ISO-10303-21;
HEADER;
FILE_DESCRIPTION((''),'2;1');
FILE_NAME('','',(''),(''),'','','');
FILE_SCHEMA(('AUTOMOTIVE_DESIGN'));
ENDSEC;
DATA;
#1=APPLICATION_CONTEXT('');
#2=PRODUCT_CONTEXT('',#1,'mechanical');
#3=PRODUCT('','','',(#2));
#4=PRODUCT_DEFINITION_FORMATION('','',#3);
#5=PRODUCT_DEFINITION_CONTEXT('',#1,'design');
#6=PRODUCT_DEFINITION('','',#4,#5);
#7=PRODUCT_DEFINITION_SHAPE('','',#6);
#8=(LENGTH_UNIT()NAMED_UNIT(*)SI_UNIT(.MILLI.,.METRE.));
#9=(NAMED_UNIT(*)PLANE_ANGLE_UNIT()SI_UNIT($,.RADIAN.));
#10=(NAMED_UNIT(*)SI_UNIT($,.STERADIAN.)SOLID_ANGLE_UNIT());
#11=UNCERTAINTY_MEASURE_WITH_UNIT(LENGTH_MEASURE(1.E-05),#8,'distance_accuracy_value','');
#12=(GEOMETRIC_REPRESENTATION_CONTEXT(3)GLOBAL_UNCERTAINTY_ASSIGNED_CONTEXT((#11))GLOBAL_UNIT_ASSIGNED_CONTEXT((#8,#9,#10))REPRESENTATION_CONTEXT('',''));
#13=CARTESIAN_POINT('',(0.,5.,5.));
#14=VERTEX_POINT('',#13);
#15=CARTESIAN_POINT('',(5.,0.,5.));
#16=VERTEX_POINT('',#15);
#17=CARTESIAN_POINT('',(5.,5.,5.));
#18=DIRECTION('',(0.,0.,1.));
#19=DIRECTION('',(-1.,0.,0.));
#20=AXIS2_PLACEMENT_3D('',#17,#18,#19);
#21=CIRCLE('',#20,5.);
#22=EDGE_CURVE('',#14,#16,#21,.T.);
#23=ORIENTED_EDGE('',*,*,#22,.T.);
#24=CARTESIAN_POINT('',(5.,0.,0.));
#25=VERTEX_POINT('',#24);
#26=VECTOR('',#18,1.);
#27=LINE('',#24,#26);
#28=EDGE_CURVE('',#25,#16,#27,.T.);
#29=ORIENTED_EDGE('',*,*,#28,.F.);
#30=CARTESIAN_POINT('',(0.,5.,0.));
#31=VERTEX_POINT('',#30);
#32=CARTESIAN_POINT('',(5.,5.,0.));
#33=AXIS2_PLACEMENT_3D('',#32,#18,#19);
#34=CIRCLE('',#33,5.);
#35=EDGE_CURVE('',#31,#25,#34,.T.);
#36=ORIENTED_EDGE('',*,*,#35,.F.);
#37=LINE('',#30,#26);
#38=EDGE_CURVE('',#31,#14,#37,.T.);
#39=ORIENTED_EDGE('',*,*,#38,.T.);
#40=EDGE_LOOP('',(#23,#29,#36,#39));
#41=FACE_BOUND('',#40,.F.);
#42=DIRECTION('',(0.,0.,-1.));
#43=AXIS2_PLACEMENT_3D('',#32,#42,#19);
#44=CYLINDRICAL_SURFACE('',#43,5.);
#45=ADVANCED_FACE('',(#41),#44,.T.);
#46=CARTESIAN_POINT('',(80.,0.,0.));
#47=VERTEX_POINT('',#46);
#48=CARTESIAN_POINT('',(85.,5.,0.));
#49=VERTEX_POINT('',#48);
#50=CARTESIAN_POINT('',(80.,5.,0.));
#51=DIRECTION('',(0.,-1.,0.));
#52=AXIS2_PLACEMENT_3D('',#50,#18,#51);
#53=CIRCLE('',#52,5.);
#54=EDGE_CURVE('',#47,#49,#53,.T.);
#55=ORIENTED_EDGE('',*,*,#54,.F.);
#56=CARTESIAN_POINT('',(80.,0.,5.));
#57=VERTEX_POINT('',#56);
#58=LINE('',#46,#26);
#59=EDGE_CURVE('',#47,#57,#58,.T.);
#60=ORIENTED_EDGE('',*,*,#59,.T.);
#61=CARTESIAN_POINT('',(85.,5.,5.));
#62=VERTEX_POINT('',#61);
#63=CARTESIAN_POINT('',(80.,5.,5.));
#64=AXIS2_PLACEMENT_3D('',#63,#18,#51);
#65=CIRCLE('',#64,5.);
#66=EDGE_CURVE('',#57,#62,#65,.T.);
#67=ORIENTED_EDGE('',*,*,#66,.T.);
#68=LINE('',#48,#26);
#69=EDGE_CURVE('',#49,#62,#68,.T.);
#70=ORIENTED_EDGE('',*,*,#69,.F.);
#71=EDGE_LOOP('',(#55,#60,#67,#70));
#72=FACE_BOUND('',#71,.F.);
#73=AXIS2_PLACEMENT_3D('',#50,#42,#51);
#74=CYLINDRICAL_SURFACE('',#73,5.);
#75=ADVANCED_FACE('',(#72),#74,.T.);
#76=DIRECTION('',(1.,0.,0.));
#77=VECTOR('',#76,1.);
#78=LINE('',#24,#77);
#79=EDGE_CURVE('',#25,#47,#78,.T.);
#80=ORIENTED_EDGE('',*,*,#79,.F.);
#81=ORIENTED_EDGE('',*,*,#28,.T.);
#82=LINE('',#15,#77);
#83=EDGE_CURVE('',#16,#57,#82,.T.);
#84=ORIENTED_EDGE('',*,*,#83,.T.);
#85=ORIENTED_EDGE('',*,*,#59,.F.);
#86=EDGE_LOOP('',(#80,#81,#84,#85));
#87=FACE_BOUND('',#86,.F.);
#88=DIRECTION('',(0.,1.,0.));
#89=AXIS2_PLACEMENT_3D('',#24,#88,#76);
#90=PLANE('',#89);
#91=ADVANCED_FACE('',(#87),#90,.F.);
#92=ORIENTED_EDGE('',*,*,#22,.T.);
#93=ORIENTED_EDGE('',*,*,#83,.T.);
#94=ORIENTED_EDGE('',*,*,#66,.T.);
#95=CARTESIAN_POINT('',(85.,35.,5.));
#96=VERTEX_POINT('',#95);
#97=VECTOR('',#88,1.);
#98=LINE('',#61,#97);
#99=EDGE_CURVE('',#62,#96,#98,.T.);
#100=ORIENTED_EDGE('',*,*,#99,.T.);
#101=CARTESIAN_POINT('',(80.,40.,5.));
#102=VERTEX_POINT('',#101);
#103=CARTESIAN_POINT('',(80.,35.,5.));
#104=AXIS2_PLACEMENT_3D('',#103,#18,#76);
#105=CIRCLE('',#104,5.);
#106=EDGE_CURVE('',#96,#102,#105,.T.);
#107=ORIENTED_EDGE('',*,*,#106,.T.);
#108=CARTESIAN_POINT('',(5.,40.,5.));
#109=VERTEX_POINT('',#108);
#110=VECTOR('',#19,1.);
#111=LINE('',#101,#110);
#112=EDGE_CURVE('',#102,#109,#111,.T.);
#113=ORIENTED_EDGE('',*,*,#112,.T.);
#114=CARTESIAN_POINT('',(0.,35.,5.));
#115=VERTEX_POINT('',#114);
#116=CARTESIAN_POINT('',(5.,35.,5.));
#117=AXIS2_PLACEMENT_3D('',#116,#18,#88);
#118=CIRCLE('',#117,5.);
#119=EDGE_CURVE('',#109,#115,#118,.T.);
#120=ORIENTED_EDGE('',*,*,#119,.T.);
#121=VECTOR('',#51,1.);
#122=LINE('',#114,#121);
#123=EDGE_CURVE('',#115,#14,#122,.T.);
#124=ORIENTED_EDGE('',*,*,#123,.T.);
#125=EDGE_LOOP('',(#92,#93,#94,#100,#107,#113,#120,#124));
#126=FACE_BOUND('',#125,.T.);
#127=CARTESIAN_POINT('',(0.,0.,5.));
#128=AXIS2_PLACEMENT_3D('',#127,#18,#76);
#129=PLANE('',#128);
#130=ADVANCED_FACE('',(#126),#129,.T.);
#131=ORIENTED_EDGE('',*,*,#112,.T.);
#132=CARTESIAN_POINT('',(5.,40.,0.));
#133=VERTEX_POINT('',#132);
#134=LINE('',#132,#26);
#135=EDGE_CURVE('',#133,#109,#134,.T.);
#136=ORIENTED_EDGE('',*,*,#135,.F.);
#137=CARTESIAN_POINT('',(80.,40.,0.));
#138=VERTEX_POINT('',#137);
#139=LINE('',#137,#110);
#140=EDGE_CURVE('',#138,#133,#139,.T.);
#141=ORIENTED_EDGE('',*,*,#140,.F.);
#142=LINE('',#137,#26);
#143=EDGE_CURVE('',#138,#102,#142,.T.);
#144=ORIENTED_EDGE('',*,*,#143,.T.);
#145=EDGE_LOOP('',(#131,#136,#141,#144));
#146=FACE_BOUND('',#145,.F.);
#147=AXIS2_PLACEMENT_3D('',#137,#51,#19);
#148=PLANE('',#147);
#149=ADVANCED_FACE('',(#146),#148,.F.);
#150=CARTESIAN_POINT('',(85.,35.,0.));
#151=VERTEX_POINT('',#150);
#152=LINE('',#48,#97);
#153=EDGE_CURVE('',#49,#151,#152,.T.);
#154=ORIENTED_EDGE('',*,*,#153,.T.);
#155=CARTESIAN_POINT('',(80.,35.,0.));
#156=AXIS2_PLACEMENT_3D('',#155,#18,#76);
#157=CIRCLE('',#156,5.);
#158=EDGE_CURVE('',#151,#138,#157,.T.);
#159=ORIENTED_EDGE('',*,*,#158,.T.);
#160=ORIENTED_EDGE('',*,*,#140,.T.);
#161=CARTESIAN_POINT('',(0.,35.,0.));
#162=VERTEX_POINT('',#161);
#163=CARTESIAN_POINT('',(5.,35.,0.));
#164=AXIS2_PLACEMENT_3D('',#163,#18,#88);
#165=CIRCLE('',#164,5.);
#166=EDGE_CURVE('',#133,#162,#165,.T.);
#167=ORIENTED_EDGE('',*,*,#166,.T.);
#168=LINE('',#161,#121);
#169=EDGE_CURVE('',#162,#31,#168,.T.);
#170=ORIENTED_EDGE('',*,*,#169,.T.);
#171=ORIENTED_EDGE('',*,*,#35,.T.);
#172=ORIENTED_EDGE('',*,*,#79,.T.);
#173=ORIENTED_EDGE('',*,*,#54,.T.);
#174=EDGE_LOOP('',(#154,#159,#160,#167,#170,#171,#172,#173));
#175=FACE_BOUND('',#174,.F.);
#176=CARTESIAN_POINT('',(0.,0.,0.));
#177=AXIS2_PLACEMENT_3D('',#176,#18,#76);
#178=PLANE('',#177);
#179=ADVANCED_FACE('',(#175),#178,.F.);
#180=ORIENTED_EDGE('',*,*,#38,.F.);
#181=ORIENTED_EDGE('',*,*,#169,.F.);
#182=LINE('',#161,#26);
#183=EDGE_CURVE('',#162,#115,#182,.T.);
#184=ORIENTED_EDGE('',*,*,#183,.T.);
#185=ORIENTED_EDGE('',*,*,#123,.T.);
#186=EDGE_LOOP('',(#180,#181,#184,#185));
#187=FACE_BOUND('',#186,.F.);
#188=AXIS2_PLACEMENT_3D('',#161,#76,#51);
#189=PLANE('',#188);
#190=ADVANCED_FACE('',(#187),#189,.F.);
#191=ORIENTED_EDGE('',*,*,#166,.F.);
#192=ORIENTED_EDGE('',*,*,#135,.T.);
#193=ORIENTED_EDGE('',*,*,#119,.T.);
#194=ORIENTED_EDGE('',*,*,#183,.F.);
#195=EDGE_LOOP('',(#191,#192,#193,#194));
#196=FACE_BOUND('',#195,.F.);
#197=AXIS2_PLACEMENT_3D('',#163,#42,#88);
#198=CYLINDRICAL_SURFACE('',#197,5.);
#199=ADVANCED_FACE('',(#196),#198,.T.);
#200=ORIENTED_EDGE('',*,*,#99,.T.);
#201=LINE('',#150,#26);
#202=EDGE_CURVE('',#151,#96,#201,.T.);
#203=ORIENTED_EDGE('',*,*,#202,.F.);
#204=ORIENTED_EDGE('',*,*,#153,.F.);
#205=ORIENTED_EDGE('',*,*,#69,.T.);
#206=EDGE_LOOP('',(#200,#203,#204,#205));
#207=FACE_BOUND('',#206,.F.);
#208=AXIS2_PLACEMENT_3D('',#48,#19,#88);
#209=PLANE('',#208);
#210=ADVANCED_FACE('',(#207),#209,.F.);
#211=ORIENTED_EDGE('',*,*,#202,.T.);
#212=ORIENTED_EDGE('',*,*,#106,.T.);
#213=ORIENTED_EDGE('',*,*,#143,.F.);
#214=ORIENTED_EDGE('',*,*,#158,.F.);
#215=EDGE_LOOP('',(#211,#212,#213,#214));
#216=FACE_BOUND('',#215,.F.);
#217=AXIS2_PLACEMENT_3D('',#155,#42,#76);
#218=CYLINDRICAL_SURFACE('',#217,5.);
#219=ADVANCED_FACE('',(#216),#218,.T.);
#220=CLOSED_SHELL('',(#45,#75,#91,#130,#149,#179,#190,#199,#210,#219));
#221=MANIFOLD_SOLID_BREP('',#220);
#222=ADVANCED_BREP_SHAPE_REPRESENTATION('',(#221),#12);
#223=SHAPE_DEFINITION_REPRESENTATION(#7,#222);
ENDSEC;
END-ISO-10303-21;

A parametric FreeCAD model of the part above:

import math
import FreeCAD as App
import Part
import Sketcher

doc = App.newDocument("Part")
params = doc.addObject("Spreadsheet::Sheet", "Params")
for row, (alias, value) in enumerate([
    ("sketch1_radius", "5 mm"),
    ("pad1_length", "5 mm"),
], start=1):
    params.set(f"A{row}", alias)
    params.set(f"B{row}", "=" + value)
    params.setAlias(f"B{row}", alias)

body = doc.addObject("PartDesign::Body", "Body")

# Sketch on XY plane
sketch1 = body.newObject("Sketcher::SketchObject", "Sketch")
sketch1.AttachmentSupport = (doc.getObject("XY_Plane"), [""])
sketch1.MapMode = "FlatFace"
sketch1.addGeometry(Part.ArcOfCircle(Part.Circle(App.Vector(5, 5, 0), App.Vector(0, 0, 1), 5), math.radians(180), math.radians(270)), False)
sketch1.addGeometry(Part.LineSegment(App.Vector(5, 0, 0), App.Vector(80, 0, 0)), False)
sketch1.addGeometry(Part.ArcOfCircle(Part.Circle(App.Vector(80, 5, 0), App.Vector(0, 0, 1), 5), math.radians(-90), math.radians(0)), False)
sketch1.addGeometry(Part.LineSegment(App.Vector(85, 5, 0), App.Vector(85, 35, 0)), False)
sketch1.addGeometry(Part.ArcOfCircle(Part.Circle(App.Vector(80, 35, 0), App.Vector(0, 0, 1), 5), math.radians(0), math.radians(90)), False)
sketch1.addGeometry(Part.LineSegment(App.Vector(80, 40, 0), App.Vector(5, 40, 0)), False)
sketch1.addGeometry(Part.ArcOfCircle(Part.Circle(App.Vector(5, 35, 0), App.Vector(0, 0, 1), 5), math.radians(90), math.radians(180)), False)
sketch1.addGeometry(Part.LineSegment(App.Vector(0, 35, 0), App.Vector(0, 5, 0)), False)
sketch1.addConstraint(Sketcher.Constraint("Tangent", 0, 2, 1, 1))
sketch1.addConstraint(Sketcher.Constraint("Tangent", 1, 2, 2, 1))
sketch1.addConstraint(Sketcher.Constraint("Tangent", 2, 2, 3, 1))
sketch1.addConstraint(Sketcher.Constraint("Tangent", 3, 2, 4, 1))
sketch1.addConstraint(Sketcher.Constraint("Tangent", 4, 2, 5, 1))
sketch1.addConstraint(Sketcher.Constraint("Tangent", 5, 2, 6, 1))
sketch1.addConstraint(Sketcher.Constraint("Tangent", 6, 2, 7, 1))
sketch1.addConstraint(Sketcher.Constraint("Tangent", 7, 2, 0, 1))
sketch1.addConstraint(Sketcher.Constraint("Horizontal", 1))
sketch1.addConstraint(Sketcher.Constraint("Vertical", 3))
sketch1.addConstraint(Sketcher.Constraint("Horizontal", 5))
sketch1.addConstraint(Sketcher.Constraint("Vertical", 7))
sketch1.addConstraint(Sketcher.Constraint("Equal", 0, 2))
sketch1.addConstraint(Sketcher.Constraint("Equal", 2, 4))
sketch1.addConstraint(Sketcher.Constraint("Equal", 4, 6))
sketch1.addConstraint(Sketcher.Constraint("PointOnObject", 0, 2, -1))
sketch1.addConstraint(Sketcher.Constraint("PointOnObject", 6, 2, -2))
sketch1.addConstraint(Sketcher.Constraint("Radius", 0, 5.0))
sketch1.addConstraint(Sketcher.Constraint("DistanceX", -1, 1, 2, 2, 85.0))
sketch1.addConstraint(Sketcher.Constraint("DistanceY", -1, 1, 4, 2, 40.0))
sketch1.setExpression("Constraints[17]", "Params.sketch1_radius")
pad1 = body.newObject("PartDesign::Pad", "Pad")
pad1.Profile = sketch1
pad1.setExpression("Length", "Params.pad1_length")

doc.recompute()
